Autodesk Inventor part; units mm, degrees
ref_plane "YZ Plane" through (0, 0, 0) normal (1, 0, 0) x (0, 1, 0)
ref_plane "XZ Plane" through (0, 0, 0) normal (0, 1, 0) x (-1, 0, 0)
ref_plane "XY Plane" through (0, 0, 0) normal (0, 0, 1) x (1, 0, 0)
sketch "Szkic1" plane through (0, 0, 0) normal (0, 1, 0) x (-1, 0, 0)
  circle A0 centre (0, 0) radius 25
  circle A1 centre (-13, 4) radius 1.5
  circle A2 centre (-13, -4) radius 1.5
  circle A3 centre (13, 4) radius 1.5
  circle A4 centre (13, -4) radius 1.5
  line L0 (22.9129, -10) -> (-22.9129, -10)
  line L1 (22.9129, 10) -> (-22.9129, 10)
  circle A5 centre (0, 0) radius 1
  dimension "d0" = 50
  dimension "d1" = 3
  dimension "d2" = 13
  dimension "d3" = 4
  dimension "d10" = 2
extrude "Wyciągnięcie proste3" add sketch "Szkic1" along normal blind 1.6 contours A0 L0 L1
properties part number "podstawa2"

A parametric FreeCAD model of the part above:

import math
import FreeCAD as App
import Part
import Sketcher

doc = App.newDocument("Part")
body = doc.addObject("PartDesign::Body", "Body")

sketch1 = body.newObject("Sketcher::SketchObject", "Sketch")
sketch1.AttachmentSupport = (doc.getObject("XZ_Plane"), [""])
sketch1.MapMode = "FlatFace"
sketch1.addGeometry([
    Part.ArcOfCircle(Part.Circle(App.Vector(0, 0, 0), App.Vector(0, 0, 1), 25), math.radians(156.421841), math.radians(203.578159)),
    Part.LineSegment(App.Vector(-22.9129, 10, 0), App.Vector(22.9129, 10, 0)),
    Part.ArcOfCircle(Part.Circle(App.Vector(0, 0, 0), App.Vector(0, 0, 1), 25), math.radians(-23.578159), math.radians(23.578159)),
    Part.LineSegment(App.Vector(22.9129, -10, 0), App.Vector(-22.9129, -10, 0)),
    Part.Circle(App.Vector(13, -4, 0), App.Vector(0, 0, 1), 1.5),
    Part.Circle(App.Vector(-13, -4, 0), App.Vector(0, 0, 1), 1.5),
    Part.Circle(App.Vector(13, 4, 0), App.Vector(0, 0, 1), 1.5),
    Part.Circle(App.Vector(0, 0, 0), App.Vector(0, 0, 1), 1),
    Part.Circle(App.Vector(-13, 4, 0), App.Vector(0, 0, 1), 1.5),
], False)
sketch1.addConstraint([
    Sketcher.Constraint("Coincident", 0, 1, 1, 1),
    Sketcher.Constraint("Coincident", 1, 2, 2, 2),
    Sketcher.Constraint("Coincident", 2, 1, 3, 1),
    Sketcher.Constraint("Coincident", 3, 2, 0, 2),
    Sketcher.Constraint("Horizontal", 1),
    Sketcher.Constraint("Horizontal", 3),
    Sketcher.Constraint("Coincident", 0, 3, -1, 1),
    Sketcher.Constraint("Coincident", 2, 3, -1, 1),
    Sketcher.Constraint("Coincident", 7, 3, -1, 1),
    Sketcher.Constraint("Equal", 0, 2),
    Sketcher.Constraint("Equal", 4, 5),
    Sketcher.Constraint("Equal", 5, 6),
    Sketcher.Constraint("Equal", 6, 8),
    Sketcher.Constraint("Symmetric", 5, 3, 6, 3, -1, 1),
    Sketcher.Constraint("Symmetric", 4, 3, 8, 3, -1, 1),
    Sketcher.Constraint("Symmetric", 4, 3, 5, 3, -2),
    Sketcher.Constraint("Vertical", 1, 2, 2, 1),
    Sketcher.Constraint("Diameter", 4, 3.0),
    Sketcher.Constraint("Diameter", 7, 2.0),
    Sketcher.Constraint("Radius", 0, 25.0),
    Sketcher.Constraint("DistanceX", -1, 1, 4, 3, 13.0),
    Sketcher.Constraint("DistanceY", 4, 3, -1, 1, 4.0),
    Sketcher.Constraint("DistanceY", -1, 1, 0, 1, 10.0),
])
pad1 = body.newObject("PartDesign::Pad", "Pad")
pad1.Profile = sketch1
pad1.Length = 1.6
pad1.Reversed = True

doc.recompute()
